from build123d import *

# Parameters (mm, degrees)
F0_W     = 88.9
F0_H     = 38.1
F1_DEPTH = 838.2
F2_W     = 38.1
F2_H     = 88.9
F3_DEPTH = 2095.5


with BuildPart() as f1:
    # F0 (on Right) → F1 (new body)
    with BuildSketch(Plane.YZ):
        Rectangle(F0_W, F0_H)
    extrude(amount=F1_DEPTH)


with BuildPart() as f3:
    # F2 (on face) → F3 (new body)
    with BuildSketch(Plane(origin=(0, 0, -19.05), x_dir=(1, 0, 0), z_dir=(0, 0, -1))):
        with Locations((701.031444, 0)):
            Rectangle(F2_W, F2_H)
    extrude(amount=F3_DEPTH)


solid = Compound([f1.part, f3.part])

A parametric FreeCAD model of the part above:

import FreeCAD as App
import Part
import Sketcher

V = App.Vector
Q = App.Units.Quantity


def add_polygon(sketch, points):
    """Adds a closed chain of lines whose ends are joined by coincident constraints."""
    first, n = sketch.GeometryCount, len(points)
    for a, b in zip(points, points[1:] + points[:1]):
        sketch.addGeometry(Part.LineSegment(App.Vector(*a, 0), App.Vector(*b, 0)), False)
    for i in range(n):
        sketch.addConstraint(Sketcher.Constraint("Coincident", first + i, 2, first + (i + 1) % n, 1))

doc = App.newDocument("Part")
params = doc.addObject("Spreadsheet::Sheet", "Params")
for row, (alias, value) in enumerate([
    ("sketch1_width", "3.5 in"),
    ("sketch1_height", "1.5 in"),
    ("pad1_length", "33 in"),
    ("sketch2_width", "1.5 in"),
    ("sketch2_height", "3.5 in"),
    ("pad2_length", "82.5 in"),
], start=1):
    params.set(f"A{row}", alias)
    params.set(f"B{row}", "=" + value)
    params.setAlias(f"B{row}", alias)

body = doc.addObject("PartDesign::Body", "Body")

# Sketch on YZ plane
sketch1 = doc.addObject("Sketcher::SketchObject", "Sketch")
body.addObject(sketch1)
sketch1.AttachmentSupport = (doc.YZ_Plane, [""])
sketch1.MapMode = "FlatFace"
add_polygon(sketch1, [(-44, 19), (-44, -19), (44, -19), (44, 19)])  # lines 0-3
sketch1.addConstraint([
    Sketcher.Constraint("Vertical", 0),
    Sketcher.Constraint("Horizontal", 1),
    Sketcher.Constraint("Vertical", 2),
    Sketcher.Constraint("Horizontal", 3),
    Sketcher.Constraint("Symmetric", 0, 2, 2, 2, -1, 1),
    Sketcher.Constraint("DistanceX", 1, 1, 1, 2, Q("3.5 in")),
    Sketcher.Constraint("DistanceY", 0, 2, 0, 1, Q("1.5 in")),
])
sketch1.setExpression("Constraints[9]", "Params.sketch1_width")
sketch1.setExpression("Constraints[10]", "Params.sketch1_height")
pad1 = doc.addObject("PartDesign::Pad", "Pad")
body.addObject(pad1)
pad1.Profile = sketch1
pad1.setExpression("Length", "Params.pad1_length")
body2 = doc.addObject("PartDesign::Body", "Body001")

# Sketch on XY plane
sketch2 = doc.addObject("Sketcher::SketchObject", "Sketch001")
body2.addObject(sketch2)
sketch2.AttachmentSupport = (doc.getObject("XY_Plane001"), [""])
sketch2.MapMode = "FlatFace"
sketch2.AttachmentOffset = App.Placement(V(0, 0, -0.75 * 25.4), App.Rotation())
add_polygon(sketch2, [(682, -44), (682, 44), (720, 44), (720, -44)])  # lines 0-3
sketch2.addConstraint([
    Sketcher.Constraint("Vertical", 0),
    Sketcher.Constraint("Horizontal", 1),
    Sketcher.Constraint("Vertical", 2),
    Sketcher.Constraint("Horizontal", 3),
    Sketcher.Constraint("DistanceX", 1, 1, 1, 2, Q("1.5 in")),
    Sketcher.Constraint("DistanceY", 0, 1, 0, 2, Q("3.5 in")),
    Sketcher.Constraint("DistanceY", -1, 1, 0, 2, Q("1.75 in")),
    Sketcher.Constraint("DistanceX", -1, 1, 0, 2, Q("681.981444 mm")),
])
sketch2.setExpression("Constraints[8]", "Params.sketch2_width")
sketch2.setExpression("Constraints[9]", "Params.sketch2_height")
pad2 = doc.addObject("PartDesign::Pad", "Pad001")
body2.addObject(pad2)
pad2.Profile = sketch2
pad2.setExpression("Length", "Params.pad2_length")
pad2.Reversed = True

doc.recompute()
